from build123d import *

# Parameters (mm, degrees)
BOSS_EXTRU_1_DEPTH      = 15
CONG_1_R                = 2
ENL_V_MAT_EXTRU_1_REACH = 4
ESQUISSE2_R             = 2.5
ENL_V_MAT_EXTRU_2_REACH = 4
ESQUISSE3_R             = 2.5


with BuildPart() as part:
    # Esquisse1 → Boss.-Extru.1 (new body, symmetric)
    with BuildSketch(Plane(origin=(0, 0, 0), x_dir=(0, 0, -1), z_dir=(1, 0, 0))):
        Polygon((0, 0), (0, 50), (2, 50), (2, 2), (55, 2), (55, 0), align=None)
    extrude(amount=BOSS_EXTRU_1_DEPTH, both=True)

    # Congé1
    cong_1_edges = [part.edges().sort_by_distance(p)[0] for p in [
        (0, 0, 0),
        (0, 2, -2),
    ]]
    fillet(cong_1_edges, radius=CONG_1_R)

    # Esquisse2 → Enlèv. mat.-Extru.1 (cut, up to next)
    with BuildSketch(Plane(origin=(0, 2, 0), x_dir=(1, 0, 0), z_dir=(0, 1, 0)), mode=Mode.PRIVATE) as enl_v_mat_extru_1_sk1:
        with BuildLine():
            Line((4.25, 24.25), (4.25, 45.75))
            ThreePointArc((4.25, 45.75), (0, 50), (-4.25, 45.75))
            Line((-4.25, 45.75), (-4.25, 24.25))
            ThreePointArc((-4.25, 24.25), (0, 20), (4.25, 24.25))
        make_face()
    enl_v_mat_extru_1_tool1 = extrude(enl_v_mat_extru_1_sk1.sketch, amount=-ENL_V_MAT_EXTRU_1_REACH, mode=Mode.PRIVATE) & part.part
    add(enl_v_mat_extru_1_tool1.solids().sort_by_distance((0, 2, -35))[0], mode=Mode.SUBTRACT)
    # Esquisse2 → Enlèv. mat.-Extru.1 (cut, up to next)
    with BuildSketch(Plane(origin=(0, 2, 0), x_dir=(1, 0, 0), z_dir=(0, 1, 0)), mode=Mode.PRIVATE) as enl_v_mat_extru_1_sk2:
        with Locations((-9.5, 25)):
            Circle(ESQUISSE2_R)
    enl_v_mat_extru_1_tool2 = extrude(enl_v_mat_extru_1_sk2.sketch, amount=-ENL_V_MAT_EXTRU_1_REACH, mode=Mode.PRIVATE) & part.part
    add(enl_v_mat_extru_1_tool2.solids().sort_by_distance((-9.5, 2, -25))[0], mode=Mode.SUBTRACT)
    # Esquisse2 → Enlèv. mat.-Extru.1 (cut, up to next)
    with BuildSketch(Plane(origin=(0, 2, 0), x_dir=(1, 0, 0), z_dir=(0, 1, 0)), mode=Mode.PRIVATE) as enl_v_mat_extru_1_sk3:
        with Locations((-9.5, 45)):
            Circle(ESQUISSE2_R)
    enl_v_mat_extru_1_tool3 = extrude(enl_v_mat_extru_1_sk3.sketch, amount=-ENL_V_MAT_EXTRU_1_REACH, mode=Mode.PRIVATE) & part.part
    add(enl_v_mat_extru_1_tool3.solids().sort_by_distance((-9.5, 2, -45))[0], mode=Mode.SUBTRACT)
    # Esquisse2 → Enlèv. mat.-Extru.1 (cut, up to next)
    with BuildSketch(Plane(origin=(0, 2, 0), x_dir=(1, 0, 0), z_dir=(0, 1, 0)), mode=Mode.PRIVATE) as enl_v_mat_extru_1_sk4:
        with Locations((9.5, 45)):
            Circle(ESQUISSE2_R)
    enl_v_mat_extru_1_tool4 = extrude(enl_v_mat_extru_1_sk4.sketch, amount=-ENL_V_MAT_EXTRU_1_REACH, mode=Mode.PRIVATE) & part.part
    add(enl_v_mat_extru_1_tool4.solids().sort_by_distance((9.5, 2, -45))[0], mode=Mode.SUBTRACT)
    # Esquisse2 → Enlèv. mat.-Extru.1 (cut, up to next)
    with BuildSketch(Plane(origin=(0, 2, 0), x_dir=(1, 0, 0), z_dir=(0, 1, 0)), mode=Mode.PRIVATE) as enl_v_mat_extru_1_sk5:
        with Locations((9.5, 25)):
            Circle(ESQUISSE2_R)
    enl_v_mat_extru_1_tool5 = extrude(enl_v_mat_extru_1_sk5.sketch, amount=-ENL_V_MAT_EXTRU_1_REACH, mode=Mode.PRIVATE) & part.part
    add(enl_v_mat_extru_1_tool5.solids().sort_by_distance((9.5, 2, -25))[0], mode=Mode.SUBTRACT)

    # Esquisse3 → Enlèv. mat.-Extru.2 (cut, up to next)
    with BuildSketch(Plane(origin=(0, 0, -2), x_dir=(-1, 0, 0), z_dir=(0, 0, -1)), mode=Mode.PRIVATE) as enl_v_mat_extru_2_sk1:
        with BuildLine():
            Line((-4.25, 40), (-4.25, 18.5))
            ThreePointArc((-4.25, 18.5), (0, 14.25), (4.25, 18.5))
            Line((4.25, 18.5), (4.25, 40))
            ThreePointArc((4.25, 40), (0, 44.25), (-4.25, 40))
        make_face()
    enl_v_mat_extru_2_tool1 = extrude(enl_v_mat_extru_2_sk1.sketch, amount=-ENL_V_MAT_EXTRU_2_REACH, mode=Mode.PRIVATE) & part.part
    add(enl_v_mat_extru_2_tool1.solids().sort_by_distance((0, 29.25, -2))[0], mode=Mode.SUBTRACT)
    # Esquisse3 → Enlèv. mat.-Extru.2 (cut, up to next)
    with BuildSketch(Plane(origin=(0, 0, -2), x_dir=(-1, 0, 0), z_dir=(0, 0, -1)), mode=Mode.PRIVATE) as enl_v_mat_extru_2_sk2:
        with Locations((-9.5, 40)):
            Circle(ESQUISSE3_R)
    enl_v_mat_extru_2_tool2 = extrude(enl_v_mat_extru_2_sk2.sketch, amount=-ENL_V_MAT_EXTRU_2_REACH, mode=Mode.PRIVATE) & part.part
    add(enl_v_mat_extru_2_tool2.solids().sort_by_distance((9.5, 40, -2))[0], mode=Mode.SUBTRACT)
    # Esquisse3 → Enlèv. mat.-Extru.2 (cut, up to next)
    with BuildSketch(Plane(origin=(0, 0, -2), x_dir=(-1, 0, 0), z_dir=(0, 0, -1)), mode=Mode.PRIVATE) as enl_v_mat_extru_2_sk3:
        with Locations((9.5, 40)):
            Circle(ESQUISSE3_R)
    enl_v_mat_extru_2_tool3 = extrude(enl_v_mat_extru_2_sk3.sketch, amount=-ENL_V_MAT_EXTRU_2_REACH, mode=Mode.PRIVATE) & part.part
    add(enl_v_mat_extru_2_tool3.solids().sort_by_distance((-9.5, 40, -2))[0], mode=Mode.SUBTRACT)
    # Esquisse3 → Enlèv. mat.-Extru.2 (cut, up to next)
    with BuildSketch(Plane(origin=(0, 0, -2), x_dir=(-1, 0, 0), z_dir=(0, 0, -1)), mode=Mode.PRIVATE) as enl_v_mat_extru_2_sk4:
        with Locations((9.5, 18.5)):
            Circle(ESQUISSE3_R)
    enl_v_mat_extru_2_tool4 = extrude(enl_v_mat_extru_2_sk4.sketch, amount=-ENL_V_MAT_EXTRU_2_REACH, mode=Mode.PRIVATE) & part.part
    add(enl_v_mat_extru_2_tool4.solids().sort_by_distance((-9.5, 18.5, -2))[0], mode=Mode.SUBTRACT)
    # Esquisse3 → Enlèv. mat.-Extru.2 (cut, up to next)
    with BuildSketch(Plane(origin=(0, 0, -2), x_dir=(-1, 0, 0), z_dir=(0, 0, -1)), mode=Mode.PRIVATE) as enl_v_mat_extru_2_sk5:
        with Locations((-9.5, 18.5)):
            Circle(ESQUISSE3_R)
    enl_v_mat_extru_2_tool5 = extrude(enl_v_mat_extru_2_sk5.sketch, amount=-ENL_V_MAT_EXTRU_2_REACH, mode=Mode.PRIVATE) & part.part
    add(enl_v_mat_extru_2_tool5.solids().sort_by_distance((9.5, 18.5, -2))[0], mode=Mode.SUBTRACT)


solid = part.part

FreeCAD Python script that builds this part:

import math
import FreeCAD as App
import Part
import Sketcher
Q = App.Units.Quantity


def edges_at(feature, points):
    """Names of the edges that pass closest to the given points."""
    edges = feature.Shape.Edges
    near = lambda p: min(range(len(edges)), key=lambda i: edges[i].distToShape(Part.Vertex(*p))[0])
    return sorted({f"Edge{near(p) + 1}" for p in points})


def add_polygon(sketch, points):
    """Adds a closed chain of lines whose ends are joined by coincident constraints."""
    first, n = sketch.GeometryCount, len(points)
    for a, b in zip(points, points[1:] + points[:1]):
        sketch.addGeometry(Part.LineSegment(App.Vector(*a, 0), App.Vector(*b, 0)), False)
    for i in range(n):
        sketch.addConstraint(Sketcher.Constraint("Coincident", first + i, 2, first + (i + 1) % n, 1))

doc = App.newDocument("Part")
body = doc.addObject("PartDesign::Body", "Body")

sketch1 = body.newObject("Sketcher::SketchObject", "Sketch")
sketch1.AttachmentSupport = (doc.getObject("YZ_Plane"), [""])
sketch1.MapMode = "FlatFace"
add_polygon(sketch1, [(50, 0), (0, 0), (0, -55), (2, -55), (2, -2), (50, -2)])
sketch1.addConstraint([
    Sketcher.Constraint("Horizontal", 0),
    Sketcher.Constraint("Vertical", 1),
    Sketcher.Constraint("Horizontal", 2),
    Sketcher.Constraint("Vertical", 3),
    Sketcher.Constraint("Horizontal", 4),
    Sketcher.Constraint("Vertical", 5),
    Sketcher.Constraint("Coincident", 0, 2, -1, 1),
    Sketcher.Constraint("Equal", 2, 5),
    Sketcher.Constraint("DistanceX", 0, 2, 0, 1, Q("50 mm")),
    Sketcher.Constraint("DistanceX", 2, 1, 2, 2, Q("2 mm")),
    Sketcher.Constraint("DistanceY", 1, 2, 1, 1, Q("55 mm")),
])
pad1 = body.newObject("PartDesign::Pad", "Pad")
pad1.Profile = sketch1
pad1.Length = 30
pad1.Midplane = True
doc.recompute()

fillet = body.newObject("PartDesign::Fillet", "Fillet")
fillet.Base = (pad1, edges_at(pad1, [(0, 0, 0), (0, 2, -2)]))
fillet.Radius = 2

sketch2 = body.newObject("Sketcher::SketchObject", "Sketch001")
sketch2.AttachmentSupport = (doc.getObject("XZ_Plane"), [""])
sketch2.MapMode = "FlatFace"
sketch2.AttachmentOffset = App.Placement(App.Vector(0, 0, -2), App.Rotation())
sketch2.addGeometry([
    Part.LineSegment(App.Vector(4.2, -24.2, 0), App.Vector(4.2, -45.8, 0)),
    Part.ArcOfCircle(Part.Circle(App.Vector(0, -45.8, 0), App.Vector(0, 0, 1), 4.2), math.radians(180), math.radians(360)),
    Part.LineSegment(App.Vector(-4.2, -45.8, 0), App.Vector(-4.2, -24.2, 0)),
    Part.ArcOfCircle(Part.Circle(App.Vector(0, -24.2, 0), App.Vector(0, 0, 1), 4.2), math.radians(0), math.radians(180)),
], False)
sketch2.addConstraint([
    Sketcher.Constraint("Tangent", 0, 2, 1, 2),
    Sketcher.Constraint("Tangent", 1, 1, 2, 1),
    Sketcher.Constraint("Tangent", 2, 2, 3, 2),
    Sketcher.Constraint("Tangent", 3, 1, 0, 1),
    Sketcher.Constraint("Vertical", 0),
    Sketcher.Constraint("Vertical", 2),
    Sketcher.Constraint("PointOnObject", 1, 3, -2),
    Sketcher.Constraint("Radius", 1, Q("4.25 mm")),
    Sketcher.Constraint("DistanceY", 0, 2, 0, 1, Q("21.5 mm")),
    Sketcher.Constraint("DistanceY", 1, 3, -1, 1, Q("45.75 mm")),
])
pocket1 = body.newObject("PartDesign::Pocket", "Pocket")
pocket1.Profile = sketch2
pocket1.Type = "UpToFirst"
pocket1.Reversed = True

sketch3 = body.newObject("Sketcher::SketchObject", "Sketch002")
sketch3.AttachmentSupport = (doc.getObject("XZ_Plane"), [""])
sketch3.MapMode = "FlatFace"
sketch3.AttachmentOffset = App.Placement(App.Vector(0, 0, -2), App.Rotation())
sketch3.addGeometry(Part.Circle(App.Vector(-9.5, -25, 0), App.Vector(0, 0, 1), 2.5), False)
sketch3.addConstraint([
    Sketcher.Constraint("Diameter", 0, Q("5 mm")),
    Sketcher.Constraint("DistanceY", 0, 3, -1, 1, Q("25 mm")),
    Sketcher.Constraint("DistanceX", 0, 3, -1, 1, Q("9.5 mm")),
])
pocket2 = body.newObject("PartDesign::Pocket", "Pocket001")
pocket2.Profile = sketch3
pocket2.Type = "UpToFirst"
pocket2.Reversed = True

sketch4 = body.newObject("Sketcher::SketchObject", "Sketch003")
sketch4.AttachmentSupport = (doc.getObject("XZ_Plane"), [""])
sketch4.MapMode = "FlatFace"
sketch4.AttachmentOffset = App.Placement(App.Vector(0, 0, -2), App.Rotation())
sketch4.addGeometry(Part.Circle(App.Vector(-9.5, -45, 0), App.Vector(0, 0, 1), 2.5), False)
sketch4.addConstraint([
    Sketcher.Constraint("Diameter", 0, Q("5 mm")),
    Sketcher.Constraint("DistanceY", 0, 3, -1, 1, Q("45 mm")),
    Sketcher.Constraint("DistanceX", 0, 3, -1, 1, Q("9.5 mm")),
])
pocket3 = body.newObject("PartDesign::Pocket", "Pocket002")
pocket3.Profile = sketch4
pocket3.Type = "UpToFirst"
pocket3.Reversed = True

sketch5 = body.newObject("Sketcher::SketchObject", "Sketch004")
sketch5.AttachmentSupport = (doc.getObject("XZ_Plane"), [""])
sketch5.MapMode = "FlatFace"
sketch5.AttachmentOffset = App.Placement(App.Vector(0, 0, -2), App.Rotation())
sketch5.addGeometry(Part.Circle(App.Vector(9.5, -45, 0), App.Vector(0, 0, 1), 2.5), False)
sketch5.addConstraint([
    Sketcher.Constraint("Diameter", 0, Q("5 mm")),
    Sketcher.Constraint("DistanceY", 0, 3, -1, 1, Q("45 mm")),
    Sketcher.Constraint("DistanceX", -1, 1, 0, 3, Q("9.5 mm")),
])
pocket4 = body.newObject("PartDesign::Pocket", "Pocket003")
pocket4.Profile = sketch5
pocket4.Type = "UpToFirst"
pocket4.Reversed = True

sketch6 = body.newObject("Sketcher::SketchObject", "Sketch005")
sketch6.AttachmentSupport = (doc.getObject("XZ_Plane"), [""])
sketch6.MapMode = "FlatFace"
sketch6.AttachmentOffset = App.Placement(App.Vector(0, 0, -2), App.Rotation())
sketch6.addGeometry(Part.Circle(App.Vector(9.5, -25, 0), App.Vector(0, 0, 1), 2.5), False)
sketch6.addConstraint([
    Sketcher.Constraint("Diameter", 0, Q("5 mm")),
    Sketcher.Constraint("DistanceY", 0, 3, -1, 1, Q("25 mm")),
    Sketcher.Constraint("DistanceX", -1, 1, 0, 3, Q("9.5 mm")),
])
pocket5 = body.newObject("PartDesign::Pocket", "Pocket004")
pocket5.Profile = sketch6
pocket5.Type = "UpToFirst"
pocket5.Reversed = True

sketch7 = body.newObject("Sketcher::SketchObject", "Sketch006")
sketch7.AttachmentSupport = (doc.getObject("XY_Plane"), [""])
sketch7.MapMode = "FlatFace"
sketch7.AttachmentOffset = App.Placement(App.Vector(0, 0, -2), App.Rotation())
sketch7.addGeometry([
    Part.LineSegment(App.Vector(4.2, 40, 0), App.Vector(4.2, 18.5, 0)),
    Part.ArcOfCircle(Part.Circle(App.Vector(0, 18.5, 0), App.Vector(0, 0, 1), 4.2), math.radians(180), math.radians(360)),
    Part.LineSegment(App.Vector(-4.2, 18.5, 0), App.Vector(-4.2, 40, 0)),
    Part.ArcOfCircle(Part.Circle(App.Vector(0, 40, 0), App.Vector(0, 0, 1), 4.2), math.radians(0), math.radians(180)),
], False)
sketch7.addConstraint([
    Sketcher.Constraint("Tangent", 0, 2, 1, 2),
    Sketcher.Constraint("Tangent", 1, 1, 2, 1),
    Sketcher.Constraint("Tangent", 2, 2, 3, 2),
    Sketcher.Constraint("Tangent", 3, 1, 0, 1),
    Sketcher.Constraint("Vertical", 0),
    Sketcher.Constraint("Vertical", 2),
    Sketcher.Constraint("PointOnObject", 1, 3, -2),
    Sketcher.Constraint("Radius", 1, Q("4.25 mm")),
    Sketcher.Constraint("DistanceY", 0, 2, 0, 1, Q("21.5 mm")),
    Sketcher.Constraint("DistanceY", -1, 1, 3, 3, Q("40 mm")),
])
pocket6 = body.newObject("PartDesign::Pocket", "Pocket005")
pocket6.Profile = sketch7
pocket6.Type = "UpToFirst"
pocket6.Reversed = True

sketch8 = body.newObject("Sketcher::SketchObject", "Sketch007")
sketch8.AttachmentSupport = (doc.getObject("XY_Plane"), [""])
sketch8.MapMode = "FlatFace"
sketch8.AttachmentOffset = App.Placement(App.Vector(0, 0, -2), App.Rotation())
sketch8.addGeometry(Part.Circle(App.Vector(9.5, 40, 0), App.Vector(0, 0, 1), 2.5), False)
sketch8.addConstraint([
    Sketcher.Constraint("Diameter", 0, Q("5 mm")),
    Sketcher.Constraint("DistanceY", -1, 1, 0, 3, Q("40 mm")),
    Sketcher.Constraint("DistanceX", -1, 1, 0, 3, Q("9.5 mm")),
])
pocket7 = body.newObject("PartDesign::Pocket", "Pocket006")
pocket7.Profile = sketch8
pocket7.Type = "UpToFirst"
pocket7.Reversed = True

sketch9 = body.newObject("Sketcher::SketchObject", "Sketch008")
sketch9.AttachmentSupport = (doc.getObject("XY_Plane"), [""])
sketch9.MapMode = "FlatFace"
sketch9.AttachmentOffset = App.Placement(App.Vector(0, 0, -2), App.Rotation())
sketch9.addGeometry(Part.Circle(App.Vector(-9.5, 40, 0), App.Vector(0, 0, 1), 2.5), False)
sketch9.addConstraint([
    Sketcher.Constraint("Diameter", 0, Q("5 mm")),
    Sketcher.Constraint("DistanceY", -1, 1, 0, 3, Q("40 mm")),
    Sketcher.Constraint("DistanceX", 0, 3, -1, 1, Q("9.5 mm")),
])
pocket8 = body.newObject("PartDesign::Pocket", "Pocket007")
pocket8.Profile = sketch9
pocket8.Type = "UpToFirst"
pocket8.Reversed = True

sketch10 = body.newObject("Sketcher::SketchObject", "Sketch009")
sketch10.AttachmentSupport = (doc.getObject("XY_Plane"), [""])
sketch10.MapMode = "FlatFace"
sketch10.AttachmentOffset = App.Placement(App.Vector(0, 0, -2), App.Rotation())
sketch10.addGeometry(Part.Circle(App.Vector(-9.5, 18.5, 0), App.Vector(0, 0, 1), 2.5), False)
sketch10.addConstraint([
    Sketcher.Constraint("Diameter", 0, Q("5 mm")),
    Sketcher.Constraint("DistanceX", 0, 3, -1, 1, Q("9.5 mm")),
    Sketcher.Constraint("DistanceY", -1, 1, 0, 3, Q("18.5 mm")),
])
pocket9 = body.newObject("PartDesign::Pocket", "Pocket008")
pocket9.Profile = sketch10
pocket9.Type = "UpToFirst"
pocket9.Reversed = True

sketch11 = body.newObject("Sketcher::SketchObject", "Sketch010")
sketch11.AttachmentSupport = (doc.getObject("XY_Plane"), [""])
sketch11.MapMode = "FlatFace"
sketch11.AttachmentOffset = App.Placement(App.Vector(0, 0, -2), App.Rotation())
sketch11.addGeometry(Part.Circle(App.Vector(9.5, 18.5, 0), App.Vector(0, 0, 1), 2.5), False)
sketch11.addConstraint([
    Sketcher.Constraint("Diameter", 0, Q("5 mm")),
    Sketcher.Constraint("DistanceX", -1, 1, 0, 3, Q("9.5 mm")),
    Sketcher.Constraint("DistanceY", -1, 1, 0, 3, Q("18.5 mm")),
])
pocket10 = body.newObject("PartDesign::Pocket", "Pocket009")
pocket10.Profile = sketch11
pocket10.Type = "UpToFirst"
pocket10.Reversed = True

doc.recompute()
